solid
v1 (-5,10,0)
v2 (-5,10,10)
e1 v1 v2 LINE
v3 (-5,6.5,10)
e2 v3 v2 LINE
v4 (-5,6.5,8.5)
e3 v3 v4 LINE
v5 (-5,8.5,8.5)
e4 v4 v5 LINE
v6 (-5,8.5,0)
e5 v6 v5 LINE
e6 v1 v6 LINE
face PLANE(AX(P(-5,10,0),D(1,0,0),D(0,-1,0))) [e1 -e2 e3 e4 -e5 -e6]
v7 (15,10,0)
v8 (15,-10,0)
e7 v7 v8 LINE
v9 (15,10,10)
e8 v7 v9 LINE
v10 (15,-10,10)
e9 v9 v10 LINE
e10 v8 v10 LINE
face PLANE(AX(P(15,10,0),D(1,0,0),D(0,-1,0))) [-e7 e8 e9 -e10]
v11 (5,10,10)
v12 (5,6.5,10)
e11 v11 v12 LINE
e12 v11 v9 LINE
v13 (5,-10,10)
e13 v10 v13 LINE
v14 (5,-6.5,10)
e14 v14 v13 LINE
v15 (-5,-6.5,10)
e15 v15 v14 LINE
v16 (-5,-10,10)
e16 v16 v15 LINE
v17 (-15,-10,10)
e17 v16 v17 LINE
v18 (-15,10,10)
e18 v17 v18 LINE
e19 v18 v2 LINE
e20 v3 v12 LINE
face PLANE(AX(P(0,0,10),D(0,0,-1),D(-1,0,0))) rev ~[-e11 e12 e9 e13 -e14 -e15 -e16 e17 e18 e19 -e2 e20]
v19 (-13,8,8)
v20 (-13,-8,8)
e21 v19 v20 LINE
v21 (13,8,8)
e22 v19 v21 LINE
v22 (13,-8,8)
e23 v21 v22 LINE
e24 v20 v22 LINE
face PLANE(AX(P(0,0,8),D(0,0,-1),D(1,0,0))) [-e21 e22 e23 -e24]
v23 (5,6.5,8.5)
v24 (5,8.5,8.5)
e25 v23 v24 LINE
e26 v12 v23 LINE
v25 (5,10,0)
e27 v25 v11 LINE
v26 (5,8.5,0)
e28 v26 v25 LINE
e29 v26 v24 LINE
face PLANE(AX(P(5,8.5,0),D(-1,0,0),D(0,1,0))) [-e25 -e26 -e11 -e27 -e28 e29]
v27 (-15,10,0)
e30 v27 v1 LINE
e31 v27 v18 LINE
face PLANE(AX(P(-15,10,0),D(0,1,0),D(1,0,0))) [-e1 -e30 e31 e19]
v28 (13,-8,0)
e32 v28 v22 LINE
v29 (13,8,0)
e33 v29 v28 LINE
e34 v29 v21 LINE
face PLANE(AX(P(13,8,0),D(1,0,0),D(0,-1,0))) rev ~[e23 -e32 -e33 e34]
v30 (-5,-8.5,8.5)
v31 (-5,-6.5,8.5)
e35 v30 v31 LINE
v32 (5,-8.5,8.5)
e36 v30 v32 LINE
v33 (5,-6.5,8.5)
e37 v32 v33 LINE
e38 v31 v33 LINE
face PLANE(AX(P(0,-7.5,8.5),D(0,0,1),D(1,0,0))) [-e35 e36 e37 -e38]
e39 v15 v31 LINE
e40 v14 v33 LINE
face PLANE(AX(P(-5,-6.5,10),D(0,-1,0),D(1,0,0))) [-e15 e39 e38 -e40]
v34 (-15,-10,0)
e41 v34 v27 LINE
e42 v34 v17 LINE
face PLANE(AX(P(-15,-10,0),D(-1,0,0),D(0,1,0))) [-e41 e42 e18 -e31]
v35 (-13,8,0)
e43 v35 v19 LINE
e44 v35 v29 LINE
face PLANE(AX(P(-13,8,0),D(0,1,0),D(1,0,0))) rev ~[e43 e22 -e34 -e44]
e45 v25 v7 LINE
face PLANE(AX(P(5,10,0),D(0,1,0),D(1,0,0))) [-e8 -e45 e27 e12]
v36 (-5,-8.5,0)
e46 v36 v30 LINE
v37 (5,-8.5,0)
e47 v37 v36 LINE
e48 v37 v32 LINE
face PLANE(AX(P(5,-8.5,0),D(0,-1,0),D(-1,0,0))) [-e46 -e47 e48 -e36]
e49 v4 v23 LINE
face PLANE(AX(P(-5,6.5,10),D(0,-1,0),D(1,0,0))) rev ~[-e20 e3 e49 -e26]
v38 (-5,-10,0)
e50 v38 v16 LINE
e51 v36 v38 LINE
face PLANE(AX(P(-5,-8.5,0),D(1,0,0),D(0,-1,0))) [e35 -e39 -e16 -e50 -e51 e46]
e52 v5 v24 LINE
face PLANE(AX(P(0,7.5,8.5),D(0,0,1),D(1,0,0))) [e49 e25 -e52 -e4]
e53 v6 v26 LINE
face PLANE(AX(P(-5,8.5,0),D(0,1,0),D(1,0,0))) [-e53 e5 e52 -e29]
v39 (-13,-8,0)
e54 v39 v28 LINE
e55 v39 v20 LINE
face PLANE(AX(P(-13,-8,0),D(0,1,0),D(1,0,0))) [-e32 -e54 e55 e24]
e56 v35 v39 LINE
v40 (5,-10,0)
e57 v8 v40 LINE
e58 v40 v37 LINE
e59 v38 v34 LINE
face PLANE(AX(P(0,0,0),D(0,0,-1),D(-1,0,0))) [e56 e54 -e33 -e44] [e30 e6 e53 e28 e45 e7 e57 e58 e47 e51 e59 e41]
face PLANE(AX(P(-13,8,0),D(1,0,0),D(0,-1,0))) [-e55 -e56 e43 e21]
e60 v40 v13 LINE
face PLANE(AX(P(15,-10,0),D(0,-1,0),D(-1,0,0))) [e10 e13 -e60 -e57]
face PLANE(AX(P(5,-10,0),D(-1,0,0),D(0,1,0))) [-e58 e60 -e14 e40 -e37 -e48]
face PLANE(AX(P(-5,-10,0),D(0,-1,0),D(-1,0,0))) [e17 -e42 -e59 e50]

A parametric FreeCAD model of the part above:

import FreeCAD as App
import Part
import Sketcher
Q = App.Units.Quantity


def add_polygon(sketch, points):
    """Adds a closed chain of lines whose ends are joined by coincident constraints."""
    first, n = sketch.GeometryCount, len(points)
    for a, b in zip(points, points[1:] + points[:1]):
        sketch.addGeometry(Part.LineSegment(App.Vector(*a, 0), App.Vector(*b, 0)), False)
    for i in range(n):
        sketch.addConstraint(Sketcher.Constraint("Coincident", first + i, 2, first + (i + 1) % n, 1))

doc = App.newDocument("Part")
body = doc.addObject("PartDesign::Body", "Body")

# Sketch on XY plane
sketch1 = body.newObject("Sketcher::SketchObject", "Sketch")
sketch1.AttachmentSupport = (doc.getObject("XY_Plane"), [""])
sketch1.MapMode = "FlatFace"
add_polygon(sketch1, [(15, -10), (15, 10), (5, 10), (5, 8.5), (-5, 8.5), (-5, 10), (-15, 10), (-15, -10), (-5, -10), (-5, -8.5), (5, -8.5), (5, -10)])  # lines 0-11
sketch1.addConstraint([
    Sketcher.Constraint("Vertical", 0),
    Sketcher.Constraint("Horizontal", 1),
    Sketcher.Constraint("Vertical", 2),
    Sketcher.Constraint("Horizontal", 3),
    Sketcher.Constraint("Vertical", 4),
    Sketcher.Constraint("Horizontal", 5),
    Sketcher.Constraint("Vertical", 6),
    Sketcher.Constraint("Horizontal", 7),
    Sketcher.Constraint("Vertical", 8),
    Sketcher.Constraint("Horizontal", 9),
    Sketcher.Constraint("Vertical", 10),
    Sketcher.Constraint("Horizontal", 11),
    Sketcher.Constraint("Symmetric", 0, 2, 6, 2, -1, 1),
    Sketcher.Constraint("Symmetric", 2, 2, 8, 2, -1, 1),
    Sketcher.Constraint("Symmetric", 4, 2, 10, 2, -1, 1),
    Sketcher.Constraint("Symmetric", 1, 2, 4, 2, -2),
    Sketcher.Constraint("Equal", 1, 3),
    Sketcher.Constraint("DistanceX", 1, 2, 1, 1, Q("10 mm")),
    Sketcher.Constraint("DistanceY", 0, 1, 0, 2, Q("20 mm")),
    Sketcher.Constraint("DistanceY", 2, 2, 2, 1, Q("1.5 mm")),
])
pad1 = body.newObject("PartDesign::Pad", "Pad")
pad1.Profile = sketch1
pad1.Length = 10

# Sketch on XY plane
sketch2 = body.newObject("Sketcher::SketchObject", "Sketch001")
sketch2.AttachmentSupport = (doc.getObject("XY_Plane"), [""])
sketch2.MapMode = "FlatFace"
add_polygon(sketch2, [(-13, -8), (-13, 8), (13, 8), (13, -8)])  # lines 0-3
sketch2.addConstraint([
    Sketcher.Constraint("Vertical", 0),
    Sketcher.Constraint("Horizontal", 1),
    Sketcher.Constraint("Vertical", 2),
    Sketcher.Constraint("Horizontal", 3),
    Sketcher.Constraint("Symmetric", 0, 2, 2, 2, -1, 1),
    Sketcher.Constraint("DistanceX", 1, 1, 1, 2, Q("26 mm")),
    Sketcher.Constraint("DistanceY", 0, 1, 0, 2, Q("16 mm")),
])
pocket1 = body.newObject("PartDesign::Pocket", "Pocket")
pocket1.Profile = sketch2
pocket1.Length = 8
pocket1.Reversed = True

# Sketch on XY plane
sketch3 = body.newObject("Sketcher::SketchObject", "Sketch002")
sketch3.AttachmentSupport = (doc.getObject("XY_Plane"), [""])
sketch3.MapMode = "FlatFace"
sketch3.AttachmentOffset = App.Placement(App.Vector(0, 0, 10), App.Rotation())
add_polygon(sketch3, [(-5, 8.5), (-5, 6.5), (5, 6.5), (5, 8.5)])  # lines 0-3
add_polygon(sketch3, [(-5, -6.5), (-5, -8.5), (5, -8.5), (5, -6.5)])  # lines 4-7
sketch3.addConstraint([
    Sketcher.Constraint("Vertical", 0),
    Sketcher.Constraint("Horizontal", 1),
    Sketcher.Constraint("Vertical", 2),
    Sketcher.Constraint("Horizontal", 3),
    Sketcher.Constraint("Vertical", 4),
    Sketcher.Constraint("Horizontal", 5),
    Sketcher.Constraint("Vertical", 6),
    Sketcher.Constraint("Horizontal", 7),
    Sketcher.Constraint("Symmetric", 2, 2, 4, 2, -1, 1),
    Sketcher.Constraint("Symmetric", 0, 2, 6, 2, -1, 1),
    Sketcher.Constraint("Vertical", 3, 2, 4, 2),
    Sketcher.Constraint("DistanceX", 1, 1, 1, 2, Q("10 mm")),
    Sketcher.Constraint("DistanceY", 0, 2, 0, 1, Q("2 mm")),
    Sketcher.Constraint("DistanceY", 4, 2, 0, 2, Q("15 mm")),
])
pocket2 = body.newObject("PartDesign::Pocket", "Pocket001")
pocket2.Profile = sketch3
pocket2.Length = 1.5

doc.recompute()
